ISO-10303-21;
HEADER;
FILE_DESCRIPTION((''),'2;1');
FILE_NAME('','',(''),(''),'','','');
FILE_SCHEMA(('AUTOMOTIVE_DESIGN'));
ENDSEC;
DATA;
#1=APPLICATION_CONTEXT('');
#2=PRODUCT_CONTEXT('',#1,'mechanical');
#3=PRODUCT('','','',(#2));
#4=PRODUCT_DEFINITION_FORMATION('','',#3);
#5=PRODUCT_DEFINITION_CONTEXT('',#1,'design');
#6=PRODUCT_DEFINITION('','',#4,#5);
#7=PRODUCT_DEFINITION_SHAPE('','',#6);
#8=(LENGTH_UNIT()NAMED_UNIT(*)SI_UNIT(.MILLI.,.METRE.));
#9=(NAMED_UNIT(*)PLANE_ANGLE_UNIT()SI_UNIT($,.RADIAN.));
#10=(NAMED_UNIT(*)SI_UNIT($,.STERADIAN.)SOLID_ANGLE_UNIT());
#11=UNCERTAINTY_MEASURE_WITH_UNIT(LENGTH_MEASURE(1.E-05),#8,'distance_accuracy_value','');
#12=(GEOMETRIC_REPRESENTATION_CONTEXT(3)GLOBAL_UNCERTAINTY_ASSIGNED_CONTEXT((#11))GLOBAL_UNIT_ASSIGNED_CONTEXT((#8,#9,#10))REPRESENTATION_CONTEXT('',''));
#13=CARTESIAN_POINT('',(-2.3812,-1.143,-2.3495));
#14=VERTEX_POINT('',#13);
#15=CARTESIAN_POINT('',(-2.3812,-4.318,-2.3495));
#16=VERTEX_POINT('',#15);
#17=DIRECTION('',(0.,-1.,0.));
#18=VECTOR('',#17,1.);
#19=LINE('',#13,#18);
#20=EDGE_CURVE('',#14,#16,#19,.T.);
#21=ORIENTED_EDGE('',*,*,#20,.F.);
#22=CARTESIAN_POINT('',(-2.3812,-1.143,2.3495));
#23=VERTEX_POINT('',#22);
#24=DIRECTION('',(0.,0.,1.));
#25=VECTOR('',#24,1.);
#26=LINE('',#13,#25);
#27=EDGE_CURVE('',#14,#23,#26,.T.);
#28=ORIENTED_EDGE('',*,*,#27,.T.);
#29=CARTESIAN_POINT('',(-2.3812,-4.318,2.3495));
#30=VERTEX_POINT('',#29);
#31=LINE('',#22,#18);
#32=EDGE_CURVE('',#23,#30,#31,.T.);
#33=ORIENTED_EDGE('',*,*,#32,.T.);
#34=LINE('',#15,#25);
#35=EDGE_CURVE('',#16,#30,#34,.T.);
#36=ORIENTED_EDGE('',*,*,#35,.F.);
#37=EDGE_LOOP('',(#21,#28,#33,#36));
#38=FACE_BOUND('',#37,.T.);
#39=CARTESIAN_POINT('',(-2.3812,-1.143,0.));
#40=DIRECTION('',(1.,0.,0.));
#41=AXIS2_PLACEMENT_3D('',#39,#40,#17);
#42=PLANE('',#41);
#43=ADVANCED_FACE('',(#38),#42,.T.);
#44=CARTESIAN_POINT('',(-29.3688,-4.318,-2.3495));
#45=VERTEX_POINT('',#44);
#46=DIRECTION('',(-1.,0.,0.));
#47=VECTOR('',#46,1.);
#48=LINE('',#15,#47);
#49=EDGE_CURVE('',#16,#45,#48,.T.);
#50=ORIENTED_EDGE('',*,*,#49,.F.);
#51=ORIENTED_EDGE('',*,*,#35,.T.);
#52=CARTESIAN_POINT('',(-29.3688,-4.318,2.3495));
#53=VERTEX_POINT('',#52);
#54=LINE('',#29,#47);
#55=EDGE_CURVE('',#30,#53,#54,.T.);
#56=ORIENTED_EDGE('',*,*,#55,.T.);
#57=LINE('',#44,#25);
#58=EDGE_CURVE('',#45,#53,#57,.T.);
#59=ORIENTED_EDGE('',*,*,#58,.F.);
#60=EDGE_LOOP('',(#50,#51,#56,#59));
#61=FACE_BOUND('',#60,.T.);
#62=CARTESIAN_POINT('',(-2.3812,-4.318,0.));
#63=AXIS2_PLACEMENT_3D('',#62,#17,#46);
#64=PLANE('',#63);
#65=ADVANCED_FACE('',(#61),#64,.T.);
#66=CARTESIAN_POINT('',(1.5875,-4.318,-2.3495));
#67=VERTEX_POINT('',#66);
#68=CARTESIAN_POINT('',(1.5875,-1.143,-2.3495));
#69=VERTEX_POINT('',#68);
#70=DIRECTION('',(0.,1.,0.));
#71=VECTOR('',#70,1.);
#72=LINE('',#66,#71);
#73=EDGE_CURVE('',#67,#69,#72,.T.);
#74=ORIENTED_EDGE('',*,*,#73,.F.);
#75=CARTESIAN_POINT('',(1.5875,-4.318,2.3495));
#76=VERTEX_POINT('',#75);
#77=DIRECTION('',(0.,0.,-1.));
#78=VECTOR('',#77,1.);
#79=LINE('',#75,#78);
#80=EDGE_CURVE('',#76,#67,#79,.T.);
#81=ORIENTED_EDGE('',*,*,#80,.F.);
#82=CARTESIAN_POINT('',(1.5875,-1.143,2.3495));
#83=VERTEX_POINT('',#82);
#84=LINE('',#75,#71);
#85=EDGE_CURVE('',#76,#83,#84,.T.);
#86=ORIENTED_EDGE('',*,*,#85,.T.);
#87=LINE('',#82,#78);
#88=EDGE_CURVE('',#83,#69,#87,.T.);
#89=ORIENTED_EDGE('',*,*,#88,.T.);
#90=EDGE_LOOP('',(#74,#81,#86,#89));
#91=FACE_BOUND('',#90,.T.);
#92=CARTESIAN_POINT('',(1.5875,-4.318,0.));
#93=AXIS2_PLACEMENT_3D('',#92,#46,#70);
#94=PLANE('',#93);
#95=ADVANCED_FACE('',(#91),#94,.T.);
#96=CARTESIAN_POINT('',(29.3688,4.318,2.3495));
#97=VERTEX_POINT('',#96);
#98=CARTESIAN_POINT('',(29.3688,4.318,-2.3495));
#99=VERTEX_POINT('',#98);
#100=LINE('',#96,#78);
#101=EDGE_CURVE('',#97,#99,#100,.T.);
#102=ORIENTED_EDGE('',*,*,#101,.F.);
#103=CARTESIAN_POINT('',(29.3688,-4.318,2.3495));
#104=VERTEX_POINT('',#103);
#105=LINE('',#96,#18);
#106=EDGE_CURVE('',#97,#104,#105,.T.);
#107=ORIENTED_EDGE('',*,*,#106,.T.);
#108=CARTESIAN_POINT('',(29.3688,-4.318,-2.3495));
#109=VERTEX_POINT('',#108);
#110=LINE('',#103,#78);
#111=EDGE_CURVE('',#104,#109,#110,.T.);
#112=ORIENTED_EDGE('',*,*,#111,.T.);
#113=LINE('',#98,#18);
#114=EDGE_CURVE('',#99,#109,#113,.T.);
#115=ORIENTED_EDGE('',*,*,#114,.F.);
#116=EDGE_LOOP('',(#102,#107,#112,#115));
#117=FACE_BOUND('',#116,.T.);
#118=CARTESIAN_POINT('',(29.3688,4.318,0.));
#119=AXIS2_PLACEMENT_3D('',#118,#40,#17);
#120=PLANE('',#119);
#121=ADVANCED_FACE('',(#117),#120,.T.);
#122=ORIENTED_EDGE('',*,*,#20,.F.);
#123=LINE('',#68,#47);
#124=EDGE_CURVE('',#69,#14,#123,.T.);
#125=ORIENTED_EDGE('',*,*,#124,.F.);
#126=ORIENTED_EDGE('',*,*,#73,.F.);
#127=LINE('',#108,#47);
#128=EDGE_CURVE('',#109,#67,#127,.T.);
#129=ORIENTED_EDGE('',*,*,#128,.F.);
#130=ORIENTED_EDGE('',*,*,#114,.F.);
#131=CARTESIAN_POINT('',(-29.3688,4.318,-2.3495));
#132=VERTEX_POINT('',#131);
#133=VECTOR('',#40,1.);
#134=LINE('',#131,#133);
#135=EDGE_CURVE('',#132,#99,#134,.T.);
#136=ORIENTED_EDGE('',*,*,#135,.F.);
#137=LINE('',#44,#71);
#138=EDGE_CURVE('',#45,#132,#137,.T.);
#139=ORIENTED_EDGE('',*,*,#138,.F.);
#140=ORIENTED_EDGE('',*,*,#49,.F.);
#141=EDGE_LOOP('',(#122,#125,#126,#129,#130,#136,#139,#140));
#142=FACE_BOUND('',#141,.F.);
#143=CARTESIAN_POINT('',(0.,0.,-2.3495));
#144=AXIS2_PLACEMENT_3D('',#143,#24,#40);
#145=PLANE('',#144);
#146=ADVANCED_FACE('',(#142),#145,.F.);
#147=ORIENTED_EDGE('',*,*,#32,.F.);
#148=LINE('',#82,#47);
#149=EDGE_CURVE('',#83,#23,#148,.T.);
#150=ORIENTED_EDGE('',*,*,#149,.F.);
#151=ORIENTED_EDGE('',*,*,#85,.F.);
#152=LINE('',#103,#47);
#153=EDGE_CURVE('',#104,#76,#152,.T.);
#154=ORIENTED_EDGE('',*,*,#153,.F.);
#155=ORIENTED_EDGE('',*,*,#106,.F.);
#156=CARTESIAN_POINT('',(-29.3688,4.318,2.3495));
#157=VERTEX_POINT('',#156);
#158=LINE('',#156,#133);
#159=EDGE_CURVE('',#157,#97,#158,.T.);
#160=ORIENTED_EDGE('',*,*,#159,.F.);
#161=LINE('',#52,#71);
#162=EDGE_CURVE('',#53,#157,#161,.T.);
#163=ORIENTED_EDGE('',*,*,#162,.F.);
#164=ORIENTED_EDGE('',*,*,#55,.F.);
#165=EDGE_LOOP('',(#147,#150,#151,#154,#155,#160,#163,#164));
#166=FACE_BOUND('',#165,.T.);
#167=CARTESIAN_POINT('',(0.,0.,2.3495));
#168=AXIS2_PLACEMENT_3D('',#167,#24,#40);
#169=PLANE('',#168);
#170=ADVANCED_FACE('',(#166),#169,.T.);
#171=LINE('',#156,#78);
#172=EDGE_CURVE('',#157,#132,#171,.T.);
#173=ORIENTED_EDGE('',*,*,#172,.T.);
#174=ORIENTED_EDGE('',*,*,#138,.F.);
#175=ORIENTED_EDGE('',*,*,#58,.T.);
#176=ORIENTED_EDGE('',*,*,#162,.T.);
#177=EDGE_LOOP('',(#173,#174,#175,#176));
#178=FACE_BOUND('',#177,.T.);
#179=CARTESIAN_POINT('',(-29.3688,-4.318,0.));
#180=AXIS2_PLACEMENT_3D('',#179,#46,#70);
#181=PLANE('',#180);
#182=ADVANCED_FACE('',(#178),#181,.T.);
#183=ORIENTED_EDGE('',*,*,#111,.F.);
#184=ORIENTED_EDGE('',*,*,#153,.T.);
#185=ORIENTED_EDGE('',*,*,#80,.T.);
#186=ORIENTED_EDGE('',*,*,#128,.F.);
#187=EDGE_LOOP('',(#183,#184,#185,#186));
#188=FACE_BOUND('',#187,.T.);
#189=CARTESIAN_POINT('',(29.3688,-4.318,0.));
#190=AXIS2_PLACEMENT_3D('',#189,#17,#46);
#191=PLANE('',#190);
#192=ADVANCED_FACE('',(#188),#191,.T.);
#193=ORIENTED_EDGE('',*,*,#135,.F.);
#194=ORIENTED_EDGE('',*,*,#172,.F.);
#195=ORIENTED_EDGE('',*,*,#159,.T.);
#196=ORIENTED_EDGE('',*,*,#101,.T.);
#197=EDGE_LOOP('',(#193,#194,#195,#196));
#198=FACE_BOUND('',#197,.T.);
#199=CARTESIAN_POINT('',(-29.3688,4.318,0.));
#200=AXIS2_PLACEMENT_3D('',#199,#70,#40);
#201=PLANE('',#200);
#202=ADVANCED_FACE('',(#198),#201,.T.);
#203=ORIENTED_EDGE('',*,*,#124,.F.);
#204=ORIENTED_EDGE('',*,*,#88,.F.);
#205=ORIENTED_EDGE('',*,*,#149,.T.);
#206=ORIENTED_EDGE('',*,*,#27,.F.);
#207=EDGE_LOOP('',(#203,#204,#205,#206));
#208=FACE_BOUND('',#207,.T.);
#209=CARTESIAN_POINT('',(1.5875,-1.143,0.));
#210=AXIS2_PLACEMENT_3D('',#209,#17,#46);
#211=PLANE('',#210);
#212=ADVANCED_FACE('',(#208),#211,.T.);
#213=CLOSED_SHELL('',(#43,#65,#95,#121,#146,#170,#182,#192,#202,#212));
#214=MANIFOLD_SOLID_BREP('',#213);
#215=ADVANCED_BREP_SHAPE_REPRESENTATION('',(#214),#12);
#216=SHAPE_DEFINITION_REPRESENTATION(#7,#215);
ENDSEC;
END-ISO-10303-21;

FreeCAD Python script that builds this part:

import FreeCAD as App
import Part
import Sketcher
Q = App.Units.Quantity


def add_polygon(sketch, points):
    """Adds a closed chain of lines whose ends are joined by coincident constraints."""
    first, n = sketch.GeometryCount, len(points)
    for a, b in zip(points, points[1:] + points[:1]):
        sketch.addGeometry(Part.LineSegment(App.Vector(*a, 0), App.Vector(*b, 0)), False)
    for i in range(n):
        sketch.addConstraint(Sketcher.Constraint("Coincident", first + i, 2, first + (i + 1) % n, 1))

doc = App.newDocument("Part")
params = doc.addObject("Spreadsheet::Sheet", "Params")
for row, (alias, value) in enumerate([
    ("sketch1_height", "0.34 in"),
    ("sketch1_width", "0.156248 in"),
    ("sketch1_width2", "1.093752 in"),
    ("sketch1_width3", "2.3125 in"),
    ("sketch1_height2", "0.125 in"),
    ("pad1_length", "0.185 in"),
], start=1):
    params.set(f"A{row}", alias)
    params.set(f"B{row}", "=" + value)
    params.setAlias(f"B{row}", alias)

body = doc.addObject("PartDesign::Body", "Body")

sketch1 = doc.addObject("Sketcher::SketchObject", "Sketch")
body.addObject(sketch1)
sketch1.AttachmentSupport = (doc.XY_Plane, [""])
sketch1.MapMode = "FlatFace"
add_polygon(sketch1, [(-29.4, 4.3), (-29.4, -4.3), (-2.4, -4.3), (-2.4, -1.1), (1.6, -1.1), (1.6, -4.3), (29.4, -4.3), (29.4, 4.3)])
sketch1.addConstraint([
    Sketcher.Constraint("Vertical", 0),
    Sketcher.Constraint("Horizontal", 1),
    Sketcher.Constraint("Vertical", 2),
    Sketcher.Constraint("Horizontal", 3),
    Sketcher.Constraint("Vertical", 4),
    Sketcher.Constraint("Horizontal", 5),
    Sketcher.Constraint("Vertical", 6),
    Sketcher.Constraint("Horizontal", 7),
    Sketcher.Constraint("Symmetric", 0, 2, 6, 2, -1, 1),
    Sketcher.Constraint("Horizontal", 1, 2, 4, 2),
    Sketcher.Constraint("DistanceY", 0, 2, 0, 1, Q("0.34 in")),
    Sketcher.Constraint("DistanceX", 3, 1, 3, 2, Q("0.156248 in")),
    Sketcher.Constraint("DistanceX", 5, 1, 5, 2, Q("1.093752 in")),
    Sketcher.Constraint("DistanceX", 7, 2, 7, 1, Q("2.3125 in")),
    Sketcher.Constraint("DistanceY", 2, 1, 2, 2, Q("0.125 in")),
])
sketch1.setExpression("Constraints[18]", "Params.sketch1_height")
sketch1.setExpression("Constraints[19]", "Params.sketch1_width")
sketch1.setExpression("Constraints[20]", "Params.sketch1_width2")
sketch1.setExpression("Constraints[21]", "Params.sketch1_width3")
sketch1.setExpression("Constraints[22]", "Params.sketch1_height2")
pad1 = doc.addObject("PartDesign::Pad", "Pad")
body.addObject(pad1)
pad1.Profile = sketch1
pad1.setExpression("Length", "Params.pad1_length")
pad1.Midplane = True

doc.recompute()
